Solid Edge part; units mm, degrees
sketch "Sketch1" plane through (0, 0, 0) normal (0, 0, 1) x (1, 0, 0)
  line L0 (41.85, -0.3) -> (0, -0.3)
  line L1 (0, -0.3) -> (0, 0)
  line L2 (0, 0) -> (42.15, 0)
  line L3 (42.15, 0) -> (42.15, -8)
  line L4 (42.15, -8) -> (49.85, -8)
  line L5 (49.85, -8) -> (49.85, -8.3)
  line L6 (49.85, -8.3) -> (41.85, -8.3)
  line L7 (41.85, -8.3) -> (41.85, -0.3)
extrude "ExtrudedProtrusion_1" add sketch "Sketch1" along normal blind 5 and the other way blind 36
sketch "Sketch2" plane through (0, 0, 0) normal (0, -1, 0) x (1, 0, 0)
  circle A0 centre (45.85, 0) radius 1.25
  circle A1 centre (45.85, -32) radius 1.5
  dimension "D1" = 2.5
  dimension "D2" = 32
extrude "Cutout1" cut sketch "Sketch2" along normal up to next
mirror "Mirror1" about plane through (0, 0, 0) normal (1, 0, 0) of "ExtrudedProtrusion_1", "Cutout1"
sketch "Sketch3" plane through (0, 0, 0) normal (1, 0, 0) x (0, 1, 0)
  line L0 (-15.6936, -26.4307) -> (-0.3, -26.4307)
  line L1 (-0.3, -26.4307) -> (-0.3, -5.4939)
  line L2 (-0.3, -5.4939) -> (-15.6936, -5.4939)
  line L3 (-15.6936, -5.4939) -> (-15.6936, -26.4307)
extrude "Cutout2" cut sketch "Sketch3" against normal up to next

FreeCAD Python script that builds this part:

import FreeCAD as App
import Part
import Sketcher

V = App.Vector

doc = App.newDocument("Part")
body = doc.addObject("PartDesign::Body", "Body")

# Sketch on XY plane
sketch1 = doc.addObject("Sketcher::SketchObject", "Sketch")
body.addObject(sketch1)
sketch1.AttachmentSupport = (doc.XY_Plane, [""])
sketch1.MapMode = "FlatFace"
sketch1.addGeometry([
    Part.LineSegment(V(0, -0.3, 0), V(41.85, -0.3, 0)),  # 0
    Part.LineSegment(V(41.85, -0.3, 0), V(41.85, -8.3, 0)),  # 1
    Part.LineSegment(V(41.85, -8.3, 0), V(49.85, -8.3, 0)),  # 2
    Part.LineSegment(V(49.85, -8.3, 0), V(49.85, -8, 0)),  # 3
    Part.LineSegment(V(49.85, -8, 0), V(42.15, -8, 0)),  # 4
    Part.LineSegment(V(42.15, -8, 0), V(42.15, 0, 0)),  # 5
    Part.LineSegment(V(42.15, 0, 0), V(0, 0, 0)),  # 6
    Part.LineSegment(V(0, 0, 0), V(0, -0.3, 0)),  # 7
], False)
sketch1.addConstraint([
    Sketcher.Constraint("Coincident", 0, 2, 1, 1),
    Sketcher.Constraint("Coincident", 1, 2, 2, 1),
    Sketcher.Constraint("Coincident", 2, 2, 3, 1),
    Sketcher.Constraint("Coincident", 3, 2, 4, 1),
    Sketcher.Constraint("Coincident", 4, 2, 5, 1),
    Sketcher.Constraint("Coincident", 5, 2, 6, 1),
    Sketcher.Constraint("Coincident", 6, 2, 7, 1),
    Sketcher.Constraint("Coincident", 7, 2, 0, 1),
    Sketcher.Constraint("Horizontal", 0),
    Sketcher.Constraint("Vertical", 1),
    Sketcher.Constraint("Horizontal", 2),
    Sketcher.Constraint("Vertical", 3),
    Sketcher.Constraint("Horizontal", 4),
    Sketcher.Constraint("Vertical", 5),
    Sketcher.Constraint("Horizontal", 6),
    Sketcher.Constraint("Vertical", 7),
    Sketcher.Constraint("Coincident", 6, 2, -1, 1),
    Sketcher.Constraint("Equal", 2, 1),
    Sketcher.Constraint("Equal", 1, 5),
    Sketcher.Constraint("DistanceX", 2, 1, 2, 2, 8.0),
    Sketcher.Constraint("DistanceX", 4, 2, 4, 1, 7.7),
    Sketcher.Constraint("DistanceY", 3, 1, 3, 2, 0.3),
    Sketcher.Constraint("DistanceX", 0, 1, 0, 2, 41.85),
])
pad1 = doc.addObject("PartDesign::Pad", "Pad")
body.addObject(pad1)
pad1.Profile = sketch1
pad1.Type = "TwoLengths"
pad1.Length = 5
pad1.Length2 = 36

# Sketch on XZ plane
sketch2 = doc.addObject("Sketcher::SketchObject", "Sketch001")
body.addObject(sketch2)
sketch2.AttachmentSupport = (doc.XZ_Plane, [""])
sketch2.MapMode = "FlatFace"
sketch2.addGeometry([
    Part.Circle(V(45.9, 0, 0), V(0, 0, 1), 1.2),
    Part.Circle(V(45.9, -32, 0), V(0, 0, 1), 1.5),
], False)
sketch2.addConstraint([
    Sketcher.Constraint("PointOnObject", 0, 3, -1),
    Sketcher.Constraint("Vertical", 0, 3, 1, 3),
    Sketcher.Constraint("Diameter", 1, 3.0),
    Sketcher.Constraint("Diameter", 0, 2.5),
    Sketcher.Constraint("DistanceY", 1, 3, -1, 1, 32.0),
    Sketcher.Constraint("DistanceX", -1, 1, 0, 3, 45.85),
])
pocket1 = doc.addObject("PartDesign::Pocket", "Pocket")
body.addObject(pocket1)
pocket1.Profile = sketch2
pocket1.Length = 8.3
pocket1.Reversed = True
doc.recompute()

mirrored = doc.addObject("PartDesign::Mirrored", "Mirrored")
body.addObject(mirrored)
mirrored.Originals = [pad1, pocket1]
mirrored.MirrorPlane = (doc.YZ_Plane, [""])
body.Tip = mirrored

# Sketch on YZ plane
sketch3 = doc.addObject("Sketcher::SketchObject", "Sketch002")
body.addObject(sketch3)
sketch3.AttachmentSupport = (doc.YZ_Plane, [""])
sketch3.MapMode = "FlatFace"
sketch3.addGeometry([
    Part.LineSegment(V(-16, -5, 0), V(-16, -26, 0)),
    Part.LineSegment(V(-16, -26, 0), V(0, -26, 0)),
    Part.LineSegment(V(0, -26, 0), V(0, -5, 0)),
    Part.LineSegment(V(0, -5, 0), V(-16, -5, 0)),
], False)
sketch3.addConstraint([
    Sketcher.Constraint("Coincident", 0, 2, 1, 1),
    Sketcher.Constraint("Coincident", 1, 2, 2, 1),
    Sketcher.Constraint("Coincident", 2, 2, 3, 1),
    Sketcher.Constraint("Coincident", 3, 2, 0, 1),
    Sketcher.Constraint("Vertical", 0),
    Sketcher.Constraint("Horizontal", 1),
    Sketcher.Constraint("Vertical", 2),
    Sketcher.Constraint("Horizontal", 3),
    Sketcher.Constraint("DistanceX", 1, 2, -1, 1, 0.3),
    Sketcher.Constraint("DistanceX", 1, 1, 1, 2, 15.3936),
    Sketcher.Constraint("DistanceY", 0, 2, 0, 1, 20.9368),
    Sketcher.Constraint("DistanceY", 2, 2, -1, 1, 5.494),
])
pocket2 = doc.addObject("PartDesign::Pocket", "Pocket001")
body.addObject(pocket2)
pocket2.Profile = sketch3
pocket2.Length = 49.85

doc.recompute()
